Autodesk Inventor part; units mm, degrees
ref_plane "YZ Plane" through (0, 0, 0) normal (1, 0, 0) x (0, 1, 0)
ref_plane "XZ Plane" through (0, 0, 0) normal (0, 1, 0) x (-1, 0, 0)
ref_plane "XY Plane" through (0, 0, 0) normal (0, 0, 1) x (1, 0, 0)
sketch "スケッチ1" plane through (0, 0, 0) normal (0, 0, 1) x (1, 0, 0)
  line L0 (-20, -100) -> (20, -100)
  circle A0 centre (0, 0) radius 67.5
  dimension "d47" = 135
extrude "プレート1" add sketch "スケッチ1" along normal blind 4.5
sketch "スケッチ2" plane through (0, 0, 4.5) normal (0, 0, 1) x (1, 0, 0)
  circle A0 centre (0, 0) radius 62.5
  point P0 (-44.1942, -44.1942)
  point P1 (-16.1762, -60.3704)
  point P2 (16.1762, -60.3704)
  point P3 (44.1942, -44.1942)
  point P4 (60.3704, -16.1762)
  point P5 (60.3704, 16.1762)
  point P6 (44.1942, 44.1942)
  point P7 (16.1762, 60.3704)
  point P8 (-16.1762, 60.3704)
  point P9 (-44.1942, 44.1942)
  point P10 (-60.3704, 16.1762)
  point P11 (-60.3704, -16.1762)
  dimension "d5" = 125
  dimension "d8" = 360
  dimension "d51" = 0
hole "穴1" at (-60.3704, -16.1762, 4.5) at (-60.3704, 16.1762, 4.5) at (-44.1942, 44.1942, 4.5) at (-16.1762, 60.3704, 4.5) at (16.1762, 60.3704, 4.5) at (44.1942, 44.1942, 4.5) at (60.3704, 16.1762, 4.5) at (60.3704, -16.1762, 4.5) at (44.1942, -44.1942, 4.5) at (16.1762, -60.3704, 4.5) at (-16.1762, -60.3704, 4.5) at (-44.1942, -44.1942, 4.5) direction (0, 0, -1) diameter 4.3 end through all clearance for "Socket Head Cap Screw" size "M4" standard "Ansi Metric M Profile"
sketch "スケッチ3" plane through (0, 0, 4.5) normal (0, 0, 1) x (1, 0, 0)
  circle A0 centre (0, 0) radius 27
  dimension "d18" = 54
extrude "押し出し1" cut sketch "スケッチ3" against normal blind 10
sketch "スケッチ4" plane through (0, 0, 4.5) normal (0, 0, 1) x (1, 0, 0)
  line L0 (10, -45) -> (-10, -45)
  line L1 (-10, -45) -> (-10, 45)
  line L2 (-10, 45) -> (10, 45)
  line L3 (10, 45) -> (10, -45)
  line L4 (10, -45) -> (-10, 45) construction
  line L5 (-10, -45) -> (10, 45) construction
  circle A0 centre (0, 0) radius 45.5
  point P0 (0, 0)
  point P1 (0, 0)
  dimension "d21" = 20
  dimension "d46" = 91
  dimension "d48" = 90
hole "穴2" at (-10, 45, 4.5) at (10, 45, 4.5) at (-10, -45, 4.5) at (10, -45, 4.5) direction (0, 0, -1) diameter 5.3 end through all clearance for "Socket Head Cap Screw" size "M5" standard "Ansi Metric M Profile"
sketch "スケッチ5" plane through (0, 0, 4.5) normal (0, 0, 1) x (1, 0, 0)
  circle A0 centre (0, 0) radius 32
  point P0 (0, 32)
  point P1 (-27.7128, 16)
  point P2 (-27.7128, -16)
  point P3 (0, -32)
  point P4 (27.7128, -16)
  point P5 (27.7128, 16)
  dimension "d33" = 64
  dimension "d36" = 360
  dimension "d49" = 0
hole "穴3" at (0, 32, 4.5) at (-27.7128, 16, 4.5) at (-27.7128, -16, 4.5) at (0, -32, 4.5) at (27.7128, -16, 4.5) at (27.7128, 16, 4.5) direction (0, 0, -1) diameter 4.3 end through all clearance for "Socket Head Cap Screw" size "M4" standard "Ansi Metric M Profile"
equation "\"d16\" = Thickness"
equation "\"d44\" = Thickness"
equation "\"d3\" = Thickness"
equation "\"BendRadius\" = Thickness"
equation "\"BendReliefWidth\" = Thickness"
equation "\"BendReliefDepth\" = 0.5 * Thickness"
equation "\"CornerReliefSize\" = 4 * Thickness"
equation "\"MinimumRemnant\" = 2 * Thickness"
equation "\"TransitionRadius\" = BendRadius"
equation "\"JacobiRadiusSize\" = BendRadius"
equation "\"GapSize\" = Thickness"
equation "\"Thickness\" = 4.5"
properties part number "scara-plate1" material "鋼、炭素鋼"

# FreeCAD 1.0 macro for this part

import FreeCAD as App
import Part
import Sketcher
Q = App.Units.Quantity

doc = App.newDocument("Part")
body = doc.addObject("PartDesign::Body", "Body")

# Sketch on XY plane
sketch1 = doc.addObject("Sketcher::SketchObject", "Sketch")
body.addObject(sketch1)
sketch1.AttachmentSupport = (doc.XY_Plane, [""])
sketch1.MapMode = "FlatFace"
sketch1.addGeometry(Part.Circle(App.Vector(0, 0, 0), App.Vector(0, 0, 1), 67.5), False)
sketch1.addConstraint([
    Sketcher.Constraint("Coincident", 0, 3, -1, 1),
    Sketcher.Constraint("Diameter", 0, Q("135 mm")),
])
pad1 = doc.addObject("PartDesign::Pad", "Pad")
body.addObject(pad1)
pad1.Profile = sketch1
pad1.Length = 4.5

# Sketch on XY plane
sketch2 = doc.addObject("Sketcher::SketchObject", "Sketch001")
body.addObject(sketch2)
sketch2.AttachmentSupport = (doc.XY_Plane, [""])
sketch2.MapMode = "FlatFace"
sketch2.AttachmentOffset = App.Placement(App.Vector(0, 0, 4.5), App.Rotation())
sketch2.addGeometry([
    Part.Circle(App.Vector(-60.3704, -16.1762, 0), App.Vector(0, 0, 1), 2.15),  # 0
    Part.Circle(App.Vector(-60.3704, 16.1762, 0), App.Vector(0, 0, 1), 2.15),  # 1
    Part.Circle(App.Vector(-44.1942, 44.1942, 0), App.Vector(0, 0, 1), 2.15),  # 2
    Part.Circle(App.Vector(-16.1762, 60.3704, 0), App.Vector(0, 0, 1), 2.15),  # 3
    Part.Circle(App.Vector(16.1762, 60.3704, 0), App.Vector(0, 0, 1), 2.15),  # 4
    Part.Circle(App.Vector(44.1942, 44.1942, 0), App.Vector(0, 0, 1), 2.15),  # 5
    Part.Circle(App.Vector(60.3704, 16.1762, 0), App.Vector(0, 0, 1), 2.15),  # 6
    Part.Circle(App.Vector(60.3704, -16.1762, 0), App.Vector(0, 0, 1), 2.15),  # 7
    Part.Circle(App.Vector(44.1942, -44.1942, 0), App.Vector(0, 0, 1), 2.15),  # 8
    Part.Circle(App.Vector(16.1762, -60.3704, 0), App.Vector(0, 0, 1), 2.15),  # 9
    Part.Circle(App.Vector(-16.1762, -60.3704, 0), App.Vector(0, 0, 1), 2.15),  # 10
    Part.Circle(App.Vector(-44.1942, -44.1942, 0), App.Vector(0, 0, 1), 2.15),  # 11
], False)
sketch2.addConstraint([
    Sketcher.Constraint("Equal", 0, 1),
    Sketcher.Constraint("Equal", 1, 2),
    Sketcher.Constraint("Equal", 2, 3),
    Sketcher.Constraint("Equal", 3, 4),
    Sketcher.Constraint("Equal", 4, 5),
    Sketcher.Constraint("Equal", 5, 6),
    Sketcher.Constraint("Equal", 6, 7),
    Sketcher.Constraint("Equal", 7, 8),
    Sketcher.Constraint("Equal", 8, 9),
    Sketcher.Constraint("Equal", 9, 10),
    Sketcher.Constraint("Equal", 10, 11),
    Sketcher.Constraint("Symmetric", 0, 3, 6, 3, -1, 1),
    Sketcher.Constraint("Symmetric", 1, 3, 7, 3, -1, 1),
    Sketcher.Constraint("Symmetric", 2, 3, 8, 3, -1, 1),
    Sketcher.Constraint("Symmetric", 3, 3, 9, 3, -1, 1),
    Sketcher.Constraint("Symmetric", 4, 3, 10, 3, -1, 1),
    Sketcher.Constraint("Symmetric", 5, 3, 11, 3, -1, 1),
    Sketcher.Constraint("Symmetric", 3, 3, 4, 3, -2),
    Sketcher.Constraint("Symmetric", 2, 3, 5, 3, -2),
    Sketcher.Constraint("Symmetric", 1, 3, 6, 3, -2),
    Sketcher.Constraint("Diameter", 0, Q("4.3 mm")),
    Sketcher.Constraint("DistanceY", 1, 3, 2, 3, Q("28.018 mm")),
    Sketcher.Constraint("DistanceX", 2, 3, 3, 3, Q("28.018 mm")),
    Sketcher.Constraint("DistanceX", 0, 3, -1, 1, Q("60.3704 mm")),
    Sketcher.Constraint("DistanceY", 0, 3, -1, 1, Q("16.1762 mm")),
    Sketcher.Constraint("DistanceX", 2, 3, -1, 1, Q("44.1942 mm")),
    Sketcher.Constraint("DistanceY", -1, 1, 3, 3, Q("60.3704 mm")),
])
doc.recompute()
hole = doc.addObject("PartDesign::Hole", "Hole")
body.addObject(hole)
hole.Profile = sketch2
hole.ThreadType = "None"
hole.Diameter = 4.3
hole.DepthType = "ThroughAll"

# Sketch on XY plane
sketch3 = doc.addObject("Sketcher::SketchObject", "Sketch002")
body.addObject(sketch3)
sketch3.AttachmentSupport = (doc.XY_Plane, [""])
sketch3.MapMode = "FlatFace"
sketch3.AttachmentOffset = App.Placement(App.Vector(0, 0, 4.5), App.Rotation())
sketch3.addGeometry(Part.Circle(App.Vector(0, 0, 0), App.Vector(0, 0, 1), 27), False)
sketch3.addConstraint([
    Sketcher.Constraint("Coincident", 0, 3, -1, 1),
    Sketcher.Constraint("Diameter", 0, Q("54 mm")),
])
pocket1 = doc.addObject("PartDesign::Pocket", "Pocket")
body.addObject(pocket1)
pocket1.Profile = sketch3
pocket1.Length = 10

# Sketch on XY plane
sketch4 = doc.addObject("Sketcher::SketchObject", "Sketch003")
body.addObject(sketch4)
sketch4.AttachmentSupport = (doc.XY_Plane, [""])
sketch4.MapMode = "FlatFace"
sketch4.AttachmentOffset = App.Placement(App.Vector(0, 0, 4.5), App.Rotation())
sketch4.addGeometry([
    Part.Circle(App.Vector(-10, 45, 0), App.Vector(0, 0, 1), 2.65),
    Part.Circle(App.Vector(10, 45, 0), App.Vector(0, 0, 1), 2.65),
    Part.Circle(App.Vector(-10, -45, 0), App.Vector(0, 0, 1), 2.65),
    Part.Circle(App.Vector(10, -45, 0), App.Vector(0, 0, 1), 2.65),
], False)
sketch4.addConstraint([
    Sketcher.Constraint("Equal", 0, 1),
    Sketcher.Constraint("Equal", 1, 2),
    Sketcher.Constraint("Equal", 2, 3),
    Sketcher.Constraint("Symmetric", 1, 3, 2, 3, -1, 1),
    Sketcher.Constraint("Symmetric", 0, 3, 3, 3, -1, 1),
    Sketcher.Constraint("Symmetric", 0, 3, 1, 3, -2),
    Sketcher.Constraint("Diameter", 0, Q("5.3 mm")),
    Sketcher.Constraint("DistanceX", 0, 3, -1, 1, Q("10 mm")),
    Sketcher.Constraint("DistanceY", -1, 1, 0, 3, Q("45 mm")),
])
doc.recompute()
hole2 = doc.addObject("PartDesign::Hole", "Hole001")
body.addObject(hole2)
hole2.Profile = sketch4
hole2.ThreadType = "None"
hole2.Diameter = 5.3
hole2.DepthType = "ThroughAll"

# Sketch on XY plane
sketch5 = doc.addObject("Sketcher::SketchObject", "Sketch004")
body.addObject(sketch5)
sketch5.AttachmentSupport = (doc.XY_Plane, [""])
sketch5.MapMode = "FlatFace"
sketch5.AttachmentOffset = App.Placement(App.Vector(0, 0, 4.5), App.Rotation())
sketch5.addGeometry([
    Part.Circle(App.Vector(0, 32, 0), App.Vector(0, 0, 1), 2.15),  # 0
    Part.Circle(App.Vector(-27.7128, 16, 0), App.Vector(0, 0, 1), 2.15),  # 1
    Part.Circle(App.Vector(-27.7128, -16, 0), App.Vector(0, 0, 1), 2.15),  # 2
    Part.Circle(App.Vector(0, -32, 0), App.Vector(0, 0, 1), 2.15),  # 3
    Part.Circle(App.Vector(27.7128, -16, 0), App.Vector(0, 0, 1), 2.15),  # 4
    Part.Circle(App.Vector(27.7128, 16, 0), App.Vector(0, 0, 1), 2.15),  # 5
], False)
sketch5.addConstraint([
    Sketcher.Constraint("Equal", 0, 1),
    Sketcher.Constraint("Equal", 1, 2),
    Sketcher.Constraint("Equal", 2, 3),
    Sketcher.Constraint("Equal", 3, 4),
    Sketcher.Constraint("Equal", 4, 5),
    Sketcher.Constraint("Symmetric", 0, 3, 3, 3, -1, 1),
    Sketcher.Constraint("Symmetric", 1, 3, 4, 3, -1, 1),
    Sketcher.Constraint("Symmetric", 2, 3, 5, 3, -1, 1),
    Sketcher.Constraint("Symmetric", 2, 3, 4, 3, -2),
    Sketcher.Constraint("PointOnObject", 0, 3, -2),
    Sketcher.Constraint("Diameter", 0, Q("4.3 mm")),
    Sketcher.Constraint("DistanceY", -1, 1, 0, 3, Q("32 mm")),
    Sketcher.Constraint("DistanceY", -1, 1, 1, 3, Q("16 mm")),
    Sketcher.Constraint("DistanceX", 1, 3, -1, 1, Q("27.7128 mm")),
])
doc.recompute()
hole3 = doc.addObject("PartDesign::Hole", "Hole002")
body.addObject(hole3)
hole3.Profile = sketch5
hole3.ThreadType = "None"
hole3.Diameter = 4.3
hole3.DepthType = "ThroughAll"

doc.recompute()
